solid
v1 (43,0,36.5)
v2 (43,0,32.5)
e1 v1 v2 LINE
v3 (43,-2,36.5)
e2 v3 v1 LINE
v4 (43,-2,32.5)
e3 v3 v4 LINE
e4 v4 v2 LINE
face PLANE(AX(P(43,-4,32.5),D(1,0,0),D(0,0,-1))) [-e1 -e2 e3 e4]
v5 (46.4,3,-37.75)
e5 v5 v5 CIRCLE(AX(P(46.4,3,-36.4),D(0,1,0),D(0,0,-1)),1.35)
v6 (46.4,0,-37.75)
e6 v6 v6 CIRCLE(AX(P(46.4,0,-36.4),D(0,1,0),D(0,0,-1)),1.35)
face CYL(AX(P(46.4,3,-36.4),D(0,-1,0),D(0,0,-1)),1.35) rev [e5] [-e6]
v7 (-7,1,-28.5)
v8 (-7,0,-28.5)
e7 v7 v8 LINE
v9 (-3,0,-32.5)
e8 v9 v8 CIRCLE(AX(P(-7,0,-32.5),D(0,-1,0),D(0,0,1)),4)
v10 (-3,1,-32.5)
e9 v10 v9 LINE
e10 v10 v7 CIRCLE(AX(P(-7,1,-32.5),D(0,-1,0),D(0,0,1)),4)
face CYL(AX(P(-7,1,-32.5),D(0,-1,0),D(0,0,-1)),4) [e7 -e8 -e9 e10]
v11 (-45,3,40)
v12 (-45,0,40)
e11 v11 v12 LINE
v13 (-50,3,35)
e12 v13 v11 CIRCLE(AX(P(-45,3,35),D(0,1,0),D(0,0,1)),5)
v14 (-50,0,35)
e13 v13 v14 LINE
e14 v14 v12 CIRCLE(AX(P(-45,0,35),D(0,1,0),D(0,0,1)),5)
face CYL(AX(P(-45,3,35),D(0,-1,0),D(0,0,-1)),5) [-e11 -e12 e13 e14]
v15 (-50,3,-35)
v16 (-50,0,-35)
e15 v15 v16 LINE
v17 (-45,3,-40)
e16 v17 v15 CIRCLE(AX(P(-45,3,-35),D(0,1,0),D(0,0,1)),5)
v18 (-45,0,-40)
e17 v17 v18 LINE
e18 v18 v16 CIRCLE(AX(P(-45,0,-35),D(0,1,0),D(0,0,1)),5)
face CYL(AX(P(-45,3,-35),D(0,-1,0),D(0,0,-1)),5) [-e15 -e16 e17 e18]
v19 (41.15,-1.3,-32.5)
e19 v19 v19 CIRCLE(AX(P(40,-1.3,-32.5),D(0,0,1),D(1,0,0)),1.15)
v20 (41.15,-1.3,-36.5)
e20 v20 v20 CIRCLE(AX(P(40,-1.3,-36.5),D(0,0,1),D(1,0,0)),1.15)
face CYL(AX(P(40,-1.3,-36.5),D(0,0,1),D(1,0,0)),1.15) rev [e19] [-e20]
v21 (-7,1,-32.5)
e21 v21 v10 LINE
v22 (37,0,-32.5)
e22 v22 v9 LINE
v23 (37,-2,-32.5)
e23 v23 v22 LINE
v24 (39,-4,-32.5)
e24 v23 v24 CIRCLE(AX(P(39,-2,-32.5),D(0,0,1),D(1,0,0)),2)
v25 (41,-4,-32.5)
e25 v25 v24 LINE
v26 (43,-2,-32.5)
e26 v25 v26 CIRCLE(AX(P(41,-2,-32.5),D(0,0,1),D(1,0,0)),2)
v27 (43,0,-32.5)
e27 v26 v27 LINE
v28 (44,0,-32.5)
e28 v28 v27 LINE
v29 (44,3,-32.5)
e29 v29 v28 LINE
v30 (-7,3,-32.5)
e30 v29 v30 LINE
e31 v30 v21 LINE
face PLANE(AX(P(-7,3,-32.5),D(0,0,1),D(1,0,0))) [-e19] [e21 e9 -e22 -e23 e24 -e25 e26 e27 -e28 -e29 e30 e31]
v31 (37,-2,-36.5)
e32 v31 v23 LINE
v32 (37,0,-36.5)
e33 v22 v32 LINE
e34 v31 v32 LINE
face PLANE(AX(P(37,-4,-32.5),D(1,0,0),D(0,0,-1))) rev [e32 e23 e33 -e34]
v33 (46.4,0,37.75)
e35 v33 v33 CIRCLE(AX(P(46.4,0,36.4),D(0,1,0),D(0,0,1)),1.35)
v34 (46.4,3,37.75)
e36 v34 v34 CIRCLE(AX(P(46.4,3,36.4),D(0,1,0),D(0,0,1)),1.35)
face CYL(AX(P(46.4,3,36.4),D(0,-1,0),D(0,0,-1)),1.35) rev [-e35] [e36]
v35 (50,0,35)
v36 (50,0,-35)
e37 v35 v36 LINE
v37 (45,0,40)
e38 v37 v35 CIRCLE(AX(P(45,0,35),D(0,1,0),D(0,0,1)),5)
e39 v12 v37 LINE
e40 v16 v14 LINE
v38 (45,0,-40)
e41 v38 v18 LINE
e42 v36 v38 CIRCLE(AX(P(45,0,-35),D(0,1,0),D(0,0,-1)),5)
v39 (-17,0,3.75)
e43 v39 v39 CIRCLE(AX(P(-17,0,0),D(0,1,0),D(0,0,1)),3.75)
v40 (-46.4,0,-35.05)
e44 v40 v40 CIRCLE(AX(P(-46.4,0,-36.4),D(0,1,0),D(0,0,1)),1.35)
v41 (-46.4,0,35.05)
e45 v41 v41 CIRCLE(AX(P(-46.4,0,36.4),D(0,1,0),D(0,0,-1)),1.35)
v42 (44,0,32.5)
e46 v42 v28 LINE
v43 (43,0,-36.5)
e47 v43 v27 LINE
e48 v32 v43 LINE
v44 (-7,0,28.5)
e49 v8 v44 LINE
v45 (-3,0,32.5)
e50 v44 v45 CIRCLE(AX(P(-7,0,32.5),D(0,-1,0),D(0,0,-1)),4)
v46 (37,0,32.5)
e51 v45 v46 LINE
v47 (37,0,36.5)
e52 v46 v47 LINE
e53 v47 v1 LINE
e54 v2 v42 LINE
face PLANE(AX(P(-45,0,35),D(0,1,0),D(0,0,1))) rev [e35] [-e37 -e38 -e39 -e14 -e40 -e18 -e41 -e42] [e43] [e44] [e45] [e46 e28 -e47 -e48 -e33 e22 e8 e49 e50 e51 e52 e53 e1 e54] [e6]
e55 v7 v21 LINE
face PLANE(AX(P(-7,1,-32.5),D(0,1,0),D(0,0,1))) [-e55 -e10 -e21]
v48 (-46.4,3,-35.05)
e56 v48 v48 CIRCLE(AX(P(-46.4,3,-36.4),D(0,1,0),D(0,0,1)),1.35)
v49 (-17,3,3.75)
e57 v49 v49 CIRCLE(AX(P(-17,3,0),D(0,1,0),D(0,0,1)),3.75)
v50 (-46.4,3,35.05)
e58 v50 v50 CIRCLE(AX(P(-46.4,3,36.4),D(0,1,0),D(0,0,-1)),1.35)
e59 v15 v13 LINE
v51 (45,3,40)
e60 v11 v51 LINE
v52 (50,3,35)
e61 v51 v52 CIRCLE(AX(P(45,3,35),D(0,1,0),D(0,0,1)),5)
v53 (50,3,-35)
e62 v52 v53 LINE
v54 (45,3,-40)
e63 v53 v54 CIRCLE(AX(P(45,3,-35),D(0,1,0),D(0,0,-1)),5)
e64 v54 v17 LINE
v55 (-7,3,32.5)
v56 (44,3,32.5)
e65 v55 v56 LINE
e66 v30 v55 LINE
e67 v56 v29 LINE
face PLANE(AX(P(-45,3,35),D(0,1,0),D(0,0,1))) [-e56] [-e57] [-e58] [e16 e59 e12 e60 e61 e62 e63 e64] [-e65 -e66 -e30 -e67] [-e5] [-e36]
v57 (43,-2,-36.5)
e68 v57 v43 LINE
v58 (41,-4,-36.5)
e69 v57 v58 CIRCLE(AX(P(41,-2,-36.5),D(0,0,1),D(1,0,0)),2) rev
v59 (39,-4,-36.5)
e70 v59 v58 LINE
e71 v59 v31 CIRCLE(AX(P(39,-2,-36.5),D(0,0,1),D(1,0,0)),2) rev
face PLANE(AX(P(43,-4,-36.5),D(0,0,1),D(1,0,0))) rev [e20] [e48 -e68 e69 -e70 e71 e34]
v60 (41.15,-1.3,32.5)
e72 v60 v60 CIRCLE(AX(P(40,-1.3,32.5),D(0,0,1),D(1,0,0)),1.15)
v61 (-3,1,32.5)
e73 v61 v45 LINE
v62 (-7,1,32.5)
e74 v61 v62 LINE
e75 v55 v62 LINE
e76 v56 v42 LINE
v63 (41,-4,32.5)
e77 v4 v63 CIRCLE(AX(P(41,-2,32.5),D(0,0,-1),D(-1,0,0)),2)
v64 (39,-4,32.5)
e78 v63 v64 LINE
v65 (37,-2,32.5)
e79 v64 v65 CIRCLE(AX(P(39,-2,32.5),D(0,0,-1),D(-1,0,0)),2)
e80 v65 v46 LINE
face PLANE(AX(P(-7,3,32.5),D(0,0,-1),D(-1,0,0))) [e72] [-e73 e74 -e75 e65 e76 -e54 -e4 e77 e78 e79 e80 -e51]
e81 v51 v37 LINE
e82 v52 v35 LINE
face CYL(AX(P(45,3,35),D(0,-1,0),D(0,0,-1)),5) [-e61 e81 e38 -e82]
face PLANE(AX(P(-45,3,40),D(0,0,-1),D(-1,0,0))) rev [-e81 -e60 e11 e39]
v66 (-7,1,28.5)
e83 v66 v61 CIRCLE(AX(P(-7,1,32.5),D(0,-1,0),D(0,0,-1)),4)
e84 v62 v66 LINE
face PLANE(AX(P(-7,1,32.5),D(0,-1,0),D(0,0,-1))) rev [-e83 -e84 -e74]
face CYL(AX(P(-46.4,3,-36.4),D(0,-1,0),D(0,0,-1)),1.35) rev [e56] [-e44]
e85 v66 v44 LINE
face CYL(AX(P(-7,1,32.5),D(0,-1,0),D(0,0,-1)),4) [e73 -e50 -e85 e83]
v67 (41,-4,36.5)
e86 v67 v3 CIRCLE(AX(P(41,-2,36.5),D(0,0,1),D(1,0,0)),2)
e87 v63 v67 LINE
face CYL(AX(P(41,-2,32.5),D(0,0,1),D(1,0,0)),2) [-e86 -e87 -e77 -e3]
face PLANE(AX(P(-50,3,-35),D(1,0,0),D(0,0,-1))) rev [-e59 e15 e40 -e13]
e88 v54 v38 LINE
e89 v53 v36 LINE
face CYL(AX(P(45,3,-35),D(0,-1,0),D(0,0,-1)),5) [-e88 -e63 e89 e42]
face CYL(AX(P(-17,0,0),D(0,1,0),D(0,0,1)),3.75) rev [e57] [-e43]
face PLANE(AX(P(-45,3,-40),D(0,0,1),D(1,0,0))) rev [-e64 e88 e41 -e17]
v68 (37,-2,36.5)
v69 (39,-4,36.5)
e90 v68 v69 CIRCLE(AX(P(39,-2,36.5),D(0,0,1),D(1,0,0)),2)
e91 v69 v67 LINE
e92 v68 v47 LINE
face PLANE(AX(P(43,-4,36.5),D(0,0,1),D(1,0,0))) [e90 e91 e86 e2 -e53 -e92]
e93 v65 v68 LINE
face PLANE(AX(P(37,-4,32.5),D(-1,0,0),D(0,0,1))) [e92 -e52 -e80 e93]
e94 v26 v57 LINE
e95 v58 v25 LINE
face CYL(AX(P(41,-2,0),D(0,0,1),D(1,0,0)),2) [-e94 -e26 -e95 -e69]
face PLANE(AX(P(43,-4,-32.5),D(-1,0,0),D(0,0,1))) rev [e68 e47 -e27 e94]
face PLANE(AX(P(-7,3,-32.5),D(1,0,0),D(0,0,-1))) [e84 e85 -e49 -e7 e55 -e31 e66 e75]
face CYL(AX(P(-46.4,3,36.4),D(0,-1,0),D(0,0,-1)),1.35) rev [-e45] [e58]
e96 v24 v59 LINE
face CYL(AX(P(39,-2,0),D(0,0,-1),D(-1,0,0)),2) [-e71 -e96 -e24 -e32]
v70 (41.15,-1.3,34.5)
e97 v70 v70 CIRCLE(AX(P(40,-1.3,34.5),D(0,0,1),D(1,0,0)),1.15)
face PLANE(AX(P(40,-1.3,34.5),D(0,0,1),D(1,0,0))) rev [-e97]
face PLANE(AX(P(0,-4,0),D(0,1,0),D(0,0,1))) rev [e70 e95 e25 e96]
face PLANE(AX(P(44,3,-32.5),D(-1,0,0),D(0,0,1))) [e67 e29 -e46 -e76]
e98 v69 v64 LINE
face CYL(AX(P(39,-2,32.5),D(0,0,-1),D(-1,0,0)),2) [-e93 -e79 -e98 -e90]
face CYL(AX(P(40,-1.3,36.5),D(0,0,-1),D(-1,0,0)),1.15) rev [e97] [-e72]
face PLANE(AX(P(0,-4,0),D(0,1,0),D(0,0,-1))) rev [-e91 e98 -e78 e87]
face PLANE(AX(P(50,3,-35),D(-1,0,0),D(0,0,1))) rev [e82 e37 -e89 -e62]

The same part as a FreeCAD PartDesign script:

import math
import FreeCAD as App
import Part
import Sketcher
from FreeCAD import Vector
Q = App.Units.Quantity


def edges_at(feature, points):
    """Names of the edges that pass closest to the given points."""
    edges = feature.Shape.Edges
    near = lambda p: min(range(len(edges)), key=lambda i: edges[i].distToShape(Part.Vertex(*p))[0])
    return sorted({f"Edge{near(p) + 1}" for p in points})


def add_polygon(sketch, points):
    """Adds a closed chain of lines whose ends are joined by coincident constraints."""
    first, n = sketch.GeometryCount, len(points)
    for a, b in zip(points, points[1:] + points[:1]):
        sketch.addGeometry(Part.LineSegment(App.Vector(*a, 0), App.Vector(*b, 0)), False)
    for i in range(n):
        sketch.addConstraint(Sketcher.Constraint("Coincident", first + i, 2, first + (i + 1) % n, 1))

doc = App.newDocument("Part")
body = doc.addObject("PartDesign::Body", "Body")

sketch1 = body.newObject("Sketcher::SketchObject", "Sketch")
sketch1.AttachmentSupport = (doc.getObject("XZ_Plane"), [""])
sketch1.MapMode = "FlatFace"
sketch1.addGeometry(Part.LineSegment(Vector(45, -40, 0), Vector(-45, -40, 0)), False)
sketch1.addGeometry(Part.ArcOfCircle(Part.Circle(Vector(-45, -35, 0), Vector(0, 0, 1), 5), math.radians(180), math.radians(270)), False)
sketch1.addGeometry(Part.LineSegment(Vector(-50, -35, 0), Vector(-50, 35, 0)), False)
sketch1.addGeometry(Part.ArcOfCircle(Part.Circle(Vector(-45, 35, 0), Vector(0, 0, 1), 5), math.radians(90), math.radians(180)), False)
sketch1.addGeometry(Part.LineSegment(Vector(-45, 40, 0), Vector(45, 40, 0)), False)
sketch1.addGeometry(Part.ArcOfCircle(Part.Circle(Vector(45, 35, 0), Vector(0, 0, 1), 5), math.radians(0), math.radians(90)), False)
sketch1.addGeometry(Part.LineSegment(Vector(50, 35, 0), Vector(50, -35, 0)), False)
sketch1.addGeometry(Part.ArcOfCircle(Part.Circle(Vector(45, -35, 0), Vector(0, 0, 1), 5), math.radians(-90), math.radians(0)), False)
sketch1.addGeometry(Part.Circle(Vector(46.4, 36.4, 0), Vector(0, 0, 1), 1.4), False)
sketch1.addGeometry(Part.Circle(Vector(-46.4, 36.4, 0), Vector(0, 0, 1), 1.4), False)
add_polygon(sketch1, [(-7, 32.5), (-7, -32.5), (44, -32.5), (44, 32.5)])
sketch1.addGeometry(Part.Circle(Vector(46.4, -36.4, 0), Vector(0, 0, 1), 1.4), False)
sketch1.addGeometry(Part.Circle(Vector(-46.4, -36.4, 0), Vector(0, 0, 1), 1.4), False)
sketch1.addConstraint([
    Sketcher.Constraint("Tangent", 0, 2, 1, 2),
    Sketcher.Constraint("Tangent", 1, 1, 2, 1),
    Sketcher.Constraint("Tangent", 2, 2, 3, 2),
    Sketcher.Constraint("Tangent", 3, 1, 4, 1),
    Sketcher.Constraint("Tangent", 4, 2, 5, 2),
    Sketcher.Constraint("Tangent", 5, 1, 6, 1),
    Sketcher.Constraint("Tangent", 6, 2, 7, 2),
    Sketcher.Constraint("Tangent", 7, 1, 0, 1),
    Sketcher.Constraint("Horizontal", 0),
    Sketcher.Constraint("Vertical", 2),
    Sketcher.Constraint("Horizontal", 4),
    Sketcher.Constraint("Vertical", 6),
    Sketcher.Constraint("Vertical", 10),
    Sketcher.Constraint("Horizontal", 11),
    Sketcher.Constraint("Vertical", 12),
    Sketcher.Constraint("Horizontal", 13),
    Sketcher.Constraint("Equal", 1, 3),
    Sketcher.Constraint("Equal", 3, 5),
    Sketcher.Constraint("Equal", 5, 7),
    Sketcher.Constraint("Equal", 8, 9),
    Sketcher.Constraint("Equal", 9, 14),
    Sketcher.Constraint("Equal", 14, 15),
    Sketcher.Constraint("Symmetric", 1, 3, 5, 3, -1, 1),
    Sketcher.Constraint("Symmetric", 9, 3, 14, 3, -1, 1),
    Sketcher.Constraint("Symmetric", 8, 3, 15, 3, -1, 1),
    Sketcher.Constraint("Symmetric", 8, 3, 9, 3, -2),
    Sketcher.Constraint("Radius", 1, Q("5 mm")),
    Sketcher.Constraint("Diameter", 8, Q("2.7 mm")),
    Sketcher.Constraint("DistanceX", 0, 2, 0, 1, Q("90 mm")),
    Sketcher.Constraint("DistanceX", 11, 1, 11, 2, Q("51 mm")),
    Sketcher.Constraint("DistanceY", 2, 1, 2, 2, Q("70 mm")),
    Sketcher.Constraint("DistanceY", 10, 2, 10, 1, Q("65 mm")),
    Sketcher.Constraint("DistanceX", 10, 2, -1, 1, Q("7 mm")),
    Sketcher.Constraint("DistanceX", -1, 1, 8, 3, Q("46.4 mm")),
    Sketcher.Constraint("DistanceY", -1, 1, 8, 3, Q("36.4 mm")),
    Sketcher.Constraint("DistanceY", 10, 2, -1, 1, Q("32.5 mm")),
])
pad1 = body.newObject("PartDesign::Pad", "Pad")
pad1.Profile = sketch1
pad1.Length = 3
pad1.Reversed = True

sketch2 = body.newObject("Sketcher::SketchObject", "Sketch001")
sketch2.AttachmentSupport = (doc.getObject("XZ_Plane"), [""])
sketch2.MapMode = "FlatFace"
add_polygon(sketch2, [(43, -36.5), (43, -32.5), (37, -32.5), (37, -36.5)])
sketch2.addConstraint([
    Sketcher.Constraint("Vertical", 0),
    Sketcher.Constraint("Horizontal", 1),
    Sketcher.Constraint("Vertical", 2),
    Sketcher.Constraint("Horizontal", 3),
    Sketcher.Constraint("DistanceX", 1, 2, 1, 1, Q("6 mm")),
    Sketcher.Constraint("DistanceY", 0, 1, 0, 2, Q("4 mm")),
    Sketcher.Constraint("DistanceX", -1, 1, 0, 2, Q("43 mm")),
    Sketcher.Constraint("DistanceY", 0, 2, -1, 1, Q("32.5 mm")),
])
pad2 = body.newObject("PartDesign::Pad", "Pad001")
pad2.Profile = sketch2
pad2.Length = 4

sketch3 = body.newObject("Sketcher::SketchObject", "Sketch002")
sketch3.AttachmentSupport = (doc.getObject("XY_Plane"), [""])
sketch3.MapMode = "FlatFace"
sketch3.AttachmentOffset = App.Placement(Vector(0, 0, -32.5), App.Rotation())
sketch3.addGeometry(Part.Circle(Vector(40, -1.3, 0), Vector(0, 0, 1), 1.1), False)
sketch3.addConstraint([
    Sketcher.Constraint("Diameter", 0, Q("2.3 mm")),
    Sketcher.Constraint("DistanceX", -1, 1, 0, 3, Q("40 mm")),
    Sketcher.Constraint("DistanceY", 0, 3, -1, 1, Q("1.3 mm")),
])
pocket1 = body.newObject("PartDesign::Pocket", "Pocket")
pocket1.Profile = sketch3
pocket1.Length = 4
doc.recompute()

fillet = body.newObject("PartDesign::Fillet", "Fillet")
fillet.Base = (pocket1, edges_at(pocket1, [(43, -4, -34.5), (37, -4, -34.5)]))
fillet.Radius = 2
doc.recompute()

mirrored = body.newObject("PartDesign::Mirrored", "Mirrored")
mirrored.Originals = [pad2, pocket1]
mirrored.MirrorPlane = (doc.getObject("XY_Plane"), [""])
body.Tip = mirrored
doc.recompute()

fillet2 = body.newObject("PartDesign::Fillet", "Fillet001")
fillet2.Base = (mirrored, edges_at(mirrored, [(43, -4, 34.5), (37, -4, 34.5)]))
fillet2.Radius = 2

sketch4 = body.newObject("Sketcher::SketchObject", "Sketch003")
sketch4.AttachmentSupport = (doc.getObject("XZ_Plane"), [""])
sketch4.MapMode = "FlatFace"
sketch4.AttachmentOffset = App.Placement(Vector(0, 0, -3), App.Rotation())
sketch4.addGeometry(Part.Circle(Vector(-17, 0, 0), Vector(0, 0, 1), 3.8), False)
sketch4.addConstraint([
    Sketcher.Constraint("PointOnObject", 0, 3, -1),
    Sketcher.Constraint("Diameter", 0, Q("7.5 mm")),
    Sketcher.Constraint("DistanceX", 0, 3, -1, 1, Q("17 mm")),
])
pocket2 = body.newObject("PartDesign::Pocket", "Pocket001")
pocket2.Profile = sketch4
pocket2.Length = 3
pocket2.Reversed = True

sketch5 = body.newObject("Sketcher::SketchObject", "Sketch004")
sketch5.AttachmentSupport = (doc.getObject("XZ_Plane"), [""])
sketch5.MapMode = "FlatFace"
sketch5.addGeometry([
    Part.LineSegment(Vector(-7, -28.5, 0), Vector(-7, -32.5, 0)),
    Part.LineSegment(Vector(-7, -32.5, 0), Vector(-3, -32.5, 0)),
    Part.ArcOfCircle(Part.Circle(Vector(-7, -32.5, 0), Vector(0, 0, 1), 4), math.radians(0), math.radians(90)),
    Part.LineSegment(Vector(-7, 32.5, 0), Vector(-7, 28.5, 0)),
    Part.ArcOfCircle(Part.Circle(Vector(-7, 32.5, 0), Vector(0, 0, 1), 4), math.radians(-90), math.radians(0)),
    Part.LineSegment(Vector(-3, 32.5, 0), Vector(-7, 32.5, 0)),
], False)
sketch5.addConstraint([
    Sketcher.Constraint("Coincident", 0, 2, 1, 1),
    Sketcher.Constraint("Coincident", 1, 2, 2, 1),
    Sketcher.Constraint("Coincident", 2, 2, 0, 1),
    Sketcher.Constraint("Coincident", 3, 2, 4, 1),
    Sketcher.Constraint("Coincident", 4, 2, 5, 1),
    Sketcher.Constraint("Coincident", 5, 2, 3, 1),
    Sketcher.Constraint("Vertical", 0),
    Sketcher.Constraint("Horizontal", 1),
    Sketcher.Constraint("Vertical", 3),
    Sketcher.Constraint("Horizontal", 5),
    Sketcher.Constraint("Coincident", 0, 2, 2, 3),
    Sketcher.Constraint("Coincident", 5, 2, 4, 3),
    Sketcher.Constraint("Equal", 2, 4),
    Sketcher.Constraint("Symmetric", 2, 3, 4, 3, -1),
    Sketcher.Constraint("Radius", 2, Q("4 mm")),
    Sketcher.Constraint("DistanceX", 2, 3, -1, 1, Q("7 mm")),
    Sketcher.Constraint("DistanceY", 2, 3, 4, 3, Q("65 mm")),
])
pad3 = body.newObject("PartDesign::Pad", "Pad002")
pad3.Profile = sketch5
pad3.Length = 1
pad3.Reversed = True

sketch6 = body.newObject("Sketcher::SketchObject", "Sketch005")
sketch6.AttachmentSupport = (doc.getObject("XY_Plane"), [""])
sketch6.MapMode = "FlatFace"
sketch6.AttachmentOffset = App.Placement(Vector(0, 0, 36.5), App.Rotation())
sketch6.addGeometry(Part.Circle(Vector(40, -1.3, 0), Vector(0, 0, 1), 1.1), False)
sketch6.addConstraint([
    Sketcher.Constraint("Diameter", 0, Q("2.3 mm")),
    Sketcher.Constraint("DistanceX", -1, 1, 0, 3, Q("40 mm")),
    Sketcher.Constraint("DistanceY", 0, 3, -1, 1, Q("1.3 mm")),
])
pad4 = body.newObject("PartDesign::Pad", "Pad003")
pad4.Profile = sketch6
pad4.Length = 2
pad4.Reversed = True

doc.recompute()
